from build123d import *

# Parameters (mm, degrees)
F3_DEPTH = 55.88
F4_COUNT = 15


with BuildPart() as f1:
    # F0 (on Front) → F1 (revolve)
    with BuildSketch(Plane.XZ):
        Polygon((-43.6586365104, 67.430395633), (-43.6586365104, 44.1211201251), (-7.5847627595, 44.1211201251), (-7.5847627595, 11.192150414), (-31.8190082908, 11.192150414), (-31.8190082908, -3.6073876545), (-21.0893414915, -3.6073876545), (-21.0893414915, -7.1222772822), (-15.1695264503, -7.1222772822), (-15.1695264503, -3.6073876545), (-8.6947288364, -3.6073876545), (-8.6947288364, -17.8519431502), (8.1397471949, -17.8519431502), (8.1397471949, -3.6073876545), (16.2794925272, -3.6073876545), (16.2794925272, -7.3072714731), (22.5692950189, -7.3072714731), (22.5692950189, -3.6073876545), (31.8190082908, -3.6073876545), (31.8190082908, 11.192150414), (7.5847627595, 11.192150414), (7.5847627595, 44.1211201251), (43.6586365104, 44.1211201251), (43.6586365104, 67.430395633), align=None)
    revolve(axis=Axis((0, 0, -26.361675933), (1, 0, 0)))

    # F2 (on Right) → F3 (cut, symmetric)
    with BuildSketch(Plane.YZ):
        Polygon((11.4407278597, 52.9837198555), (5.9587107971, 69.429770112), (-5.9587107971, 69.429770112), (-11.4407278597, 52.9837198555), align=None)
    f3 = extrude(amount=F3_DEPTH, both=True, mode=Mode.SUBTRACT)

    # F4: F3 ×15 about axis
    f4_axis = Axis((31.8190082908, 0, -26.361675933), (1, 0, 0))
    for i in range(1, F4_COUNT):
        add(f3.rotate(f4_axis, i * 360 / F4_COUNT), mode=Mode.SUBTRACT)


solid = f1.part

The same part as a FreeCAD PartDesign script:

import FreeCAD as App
import Part
import Sketcher

V = App.Vector
Q = App.Units.Quantity

doc = App.newDocument("Part")
body = doc.addObject("PartDesign::Body", "Body")

sketch1 = doc.addObject("Sketcher::SketchObject", "Sketch")
body.addObject(sketch1)
sketch1.AttachmentSupport = (doc.XZ_Plane, [""])
sketch1.MapMode = "FlatFace"
sketch1.addGeometry(Part.LineSegment(V(-43.7, 67.4, 0), V(-43.7, 44.1, 0)), False)
sketch1.addGeometry(Part.LineSegment(V(-43.7, 44.1, 0), V(-7.6, 44.1, 0)), False)
sketch1.addGeometry(Part.LineSegment(V(-7.6, 44.1, 0), V(-7.6, 11.2, 0)), False)
sketch1.addGeometry(Part.LineSegment(V(-7.6, 11.2, 0), V(-31.8, 11.2, 0)), False)
sketch1.addGeometry(Part.LineSegment(V(-31.8, 11.2, 0), V(-31.8, -3.6, 0)), False)
sketch1.addGeometry(Part.LineSegment(V(-31.8, -3.6, 0), V(-21.1, -3.6, 0)), False)
sketch1.addGeometry(Part.LineSegment(V(-21.1, -3.6, 0), V(-21.1, -7.1, 0)), False)
sketch1.addGeometry(Part.LineSegment(V(-21.1, -7.1, 0), V(-15.2, -7.1, 0)), False)
sketch1.addGeometry(Part.LineSegment(V(-15.2, -7.1, 0), V(-15.2, -3.6, 0)), False)
sketch1.addGeometry(Part.LineSegment(V(-15.2, -3.6, 0), V(-8.7, -3.6, 0)), False)
sketch1.addGeometry(Part.LineSegment(V(-8.7, -3.6, 0), V(-8.7, -17.9, 0)), False)
sketch1.addGeometry(Part.LineSegment(V(-8.7, -17.9, 0), V(8.1, -17.9, 0)), False)
sketch1.addGeometry(Part.LineSegment(V(8.1, -17.9, 0), V(8.1, -3.6, 0)), False)
sketch1.addGeometry(Part.LineSegment(V(8.1, -3.6, 0), V(16.3, -3.6, 0)), False)
sketch1.addGeometry(Part.LineSegment(V(16.3, -3.6, 0), V(16.3, -7.3, 0)), False)
sketch1.addGeometry(Part.LineSegment(V(16.3, -7.3, 0), V(22.6, -7.3, 0)), False)
sketch1.addGeometry(Part.LineSegment(V(22.6, -7.3, 0), V(22.6, -3.6, 0)), False)
sketch1.addGeometry(Part.LineSegment(V(22.6, -3.6, 0), V(31.8, -3.6, 0)), False)
sketch1.addGeometry(Part.LineSegment(V(31.8, -3.6, 0), V(31.8, 11.2, 0)), False)
sketch1.addGeometry(Part.LineSegment(V(31.8, 11.2, 0), V(7.6, 11.2, 0)), False)
sketch1.addGeometry(Part.LineSegment(V(7.6, 11.2, 0), V(7.6, 44.1, 0)), False)
sketch1.addGeometry(Part.LineSegment(V(7.6, 44.1, 0), V(43.7, 44.1, 0)), False)
sketch1.addGeometry(Part.LineSegment(V(43.7, 44.1, 0), V(43.7, 67.4, 0)), False)
sketch1.addGeometry(Part.LineSegment(V(43.7, 67.4, 0), V(-43.7, 67.4, 0)), False)
sketch1.addGeometry(Part.LineSegment(V(-43.7, -26.4, 0), V(43.7, -26.4, 0)), True)
sketch1.addConstraint(Sketcher.Constraint("Coincident", 0, 2, 1, 1))
sketch1.addConstraint(Sketcher.Constraint("Coincident", 1, 2, 2, 1))
sketch1.addConstraint(Sketcher.Constraint("Coincident", 2, 2, 3, 1))
sketch1.addConstraint(Sketcher.Constraint("Coincident", 3, 2, 4, 1))
sketch1.addConstraint(Sketcher.Constraint("Coincident", 4, 2, 5, 1))
sketch1.addConstraint(Sketcher.Constraint("Coincident", 5, 2, 6, 1))
sketch1.addConstraint(Sketcher.Constraint("Coincident", 6, 2, 7, 1))
sketch1.addConstraint(Sketcher.Constraint("Coincident", 7, 2, 8, 1))
sketch1.addConstraint(Sketcher.Constraint("Coincident", 8, 2, 9, 1))
sketch1.addConstraint(Sketcher.Constraint("Coincident", 9, 2, 10, 1))
sketch1.addConstraint(Sketcher.Constraint("Coincident", 10, 2, 11, 1))
sketch1.addConstraint(Sketcher.Constraint("Coincident", 11, 2, 12, 1))
sketch1.addConstraint(Sketcher.Constraint("Coincident", 12, 2, 13, 1))
sketch1.addConstraint(Sketcher.Constraint("Coincident", 13, 2, 14, 1))
sketch1.addConstraint(Sketcher.Constraint("Coincident", 14, 2, 15, 1))
sketch1.addConstraint(Sketcher.Constraint("Coincident", 15, 2, 16, 1))
sketch1.addConstraint(Sketcher.Constraint("Coincident", 16, 2, 17, 1))
sketch1.addConstraint(Sketcher.Constraint("Coincident", 17, 2, 18, 1))
sketch1.addConstraint(Sketcher.Constraint("Coincident", 18, 2, 19, 1))
sketch1.addConstraint(Sketcher.Constraint("Coincident", 19, 2, 20, 1))
sketch1.addConstraint(Sketcher.Constraint("Coincident", 20, 2, 21, 1))
sketch1.addConstraint(Sketcher.Constraint("Coincident", 21, 2, 22, 1))
sketch1.addConstraint(Sketcher.Constraint("Coincident", 22, 2, 23, 1))
sketch1.addConstraint(Sketcher.Constraint("Coincident", 23, 2, 0, 1))
sketch1.addConstraint(Sketcher.Constraint("Vertical", 0))
sketch1.addConstraint(Sketcher.Constraint("Horizontal", 1))
sketch1.addConstraint(Sketcher.Constraint("Vertical", 2))
sketch1.addConstraint(Sketcher.Constraint("Horizontal", 3))
sketch1.addConstraint(Sketcher.Constraint("Vertical", 4))
sketch1.addConstraint(Sketcher.Constraint("Horizontal", 5))
sketch1.addConstraint(Sketcher.Constraint("Vertical", 6))
sketch1.addConstraint(Sketcher.Constraint("Horizontal", 7))
sketch1.addConstraint(Sketcher.Constraint("Vertical", 8))
sketch1.addConstraint(Sketcher.Constraint("Horizontal", 9))
sketch1.addConstraint(Sketcher.Constraint("Vertical", 10))
sketch1.addConstraint(Sketcher.Constraint("Horizontal", 11))
sketch1.addConstraint(Sketcher.Constraint("Vertical", 12))
sketch1.addConstraint(Sketcher.Constraint("Horizontal", 13))
sketch1.addConstraint(Sketcher.Constraint("Vertical", 14))
sketch1.addConstraint(Sketcher.Constraint("Horizontal", 15))
sketch1.addConstraint(Sketcher.Constraint("Vertical", 16))
sketch1.addConstraint(Sketcher.Constraint("Horizontal", 17))
sketch1.addConstraint(Sketcher.Constraint("Vertical", 18))
sketch1.addConstraint(Sketcher.Constraint("Horizontal", 19))
sketch1.addConstraint(Sketcher.Constraint("Vertical", 20))
sketch1.addConstraint(Sketcher.Constraint("Horizontal", 21))
sketch1.addConstraint(Sketcher.Constraint("Vertical", 22))
sketch1.addConstraint(Sketcher.Constraint("Horizontal", 23))
sketch1.addConstraint(Sketcher.Constraint("Horizontal", 24))
sketch1.addConstraint(Sketcher.Constraint("Symmetric", 4, 2, 17, 2, -2))
sketch1.addConstraint(Sketcher.Constraint("Symmetric", 2, 2, 19, 2, -2))
sketch1.addConstraint(Sketcher.Constraint("Symmetric", 0, 2, 21, 2, -2))
sketch1.addConstraint(Sketcher.Constraint("Horizontal", 5, 2, 8, 2))
sketch1.addConstraint(Sketcher.Constraint("Horizontal", 9, 2, 12, 2))
sketch1.addConstraint(Sketcher.Constraint("Vertical", 23, 2, 24, 1))
sketch1.addConstraint(Sketcher.Constraint("Vertical", 22, 2, 24, 2))
sketch1.addConstraint(Sketcher.Constraint("DistanceY", 2, 2, 2, 1, 32.92897))
sketch1.addConstraint(Sketcher.Constraint("DistanceY", 4, 2, 4, 1, 14.799538))
sketch1.addConstraint(Sketcher.Constraint("DistanceY", 6, 2, 6, 1, 3.51489))
sketch1.addConstraint(Sketcher.Constraint("DistanceX", 1, 2, 21, 2, 51.243399))
sketch1.addConstraint(Sketcher.Constraint("DistanceY", 24, 1, 6, 2, 19.239399))
sketch1.addConstraint(Sketcher.Constraint("DistanceX", 1, 1, 1, 2, 36.073874))
sketch1.addConstraint(Sketcher.Constraint("DistanceX", 3, 2, 3, 1, 24.234246))
sketch1.addConstraint(Sketcher.Constraint("DistanceX", 5, 1, 5, 2, 10.729667))
sketch1.addConstraint(Sketcher.Constraint("DistanceX", 7, 1, 7, 2, 5.919815))
sketch1.addConstraint(Sketcher.Constraint("DistanceX", 9, 1, 9, 2, 6.474798))
sketch1.addConstraint(Sketcher.Constraint("DistanceX", 11, 1, 11, 2, 16.834476))
sketch1.addConstraint(Sketcher.Constraint("DistanceX", 13, 1, 13, 2, 8.139745))
sketch1.addConstraint(Sketcher.Constraint("DistanceX", 15, 1, 15, 2, 6.289802))
sketch1.addConstraint(Sketcher.Constraint("DistanceY", 0, 2, 0, 1, 23.309276))
sketch1.addConstraint(Sketcher.Constraint("DistanceY", 10, 2, 10, 1, 14.244555))
sketch1.addConstraint(Sketcher.Constraint("DistanceY", 14, 2, 14, 1, 3.699884))
sketch1.addConstraint(Sketcher.Constraint("DistanceY", -1, 1, 0, 2, 44.12112))
revolution = doc.addObject("PartDesign::Revolution", "Revolution")
body.addObject(revolution)
revolution.Profile = sketch1
revolution.ReferenceAxis = (sketch1, ["Axis0"])
revolution.Angle = 360

sketch2 = doc.addObject("Sketcher::SketchObject", "Sketch001")
body.addObject(sketch2)
sketch2.AttachmentSupport = (doc.YZ_Plane, [""])
sketch2.MapMode = "FlatFace"
sketch2.addGeometry(Part.LineSegment(V(11, 53, 0), V(6, 69, 0)), False)
sketch2.addGeometry(Part.LineSegment(V(6, 69, 0), V(-6, 69, 0)), False)
sketch2.addGeometry(Part.LineSegment(V(-6, 69, 0), V(-11, 53, 0)), False)
sketch2.addGeometry(Part.LineSegment(V(-11, 53, 0), V(11, 53, 0)), False)
sketch2.addConstraint(Sketcher.Constraint("Coincident", 0, 2, 1, 1))
sketch2.addConstraint(Sketcher.Constraint("Coincident", 1, 2, 2, 1))
sketch2.addConstraint(Sketcher.Constraint("Coincident", 2, 2, 3, 1))
sketch2.addConstraint(Sketcher.Constraint("Coincident", 3, 2, 0, 1))
sketch2.addConstraint(Sketcher.Constraint("Horizontal", 1))
sketch2.addConstraint(Sketcher.Constraint("Horizontal", 3))
sketch2.addConstraint(Sketcher.Constraint("Equal", 0, 2))
sketch2.addConstraint(Sketcher.Constraint("DistanceX", 1, 2, 1, 1, 11.917422))
sketch2.addConstraint(Sketcher.Constraint("Distance", 0, 17.335659))
sketch2.addConstraint(Sketcher.Constraint("DistanceX", 3, 1, 3, 2, 22.881456))
sketch2.addConstraint(Sketcher.Constraint("DistanceX", -1, 1, 0, 2, 5.958711))
sketch2.addConstraint(Sketcher.Constraint("DistanceY", -1, 1, 0, 2, 69.42977))
pocket1 = doc.addObject("PartDesign::Pocket", "Pocket")
body.addObject(pocket1)
pocket1.Profile = sketch2
pocket1.Length = Q("4.4 in")
pocket1.Midplane = True
doc.recompute()

datumline = doc.addObject("PartDesign::Line", "DatumLine")
body.addObject(datumline)
datumline.Placement = App.Placement(V(0, 0, -26.361676), App.Rotation(V(0, 0, 1), V(1, 0, 0)))
polarpattern = doc.addObject("PartDesign::PolarPattern", "PolarPattern")
body.addObject(polarpattern)
polarpattern.Originals = [pocket1]
polarpattern.Axis = (datumline, [""])
polarpattern.Angle = 360
polarpattern.Occurrences = 15
body.Tip = polarpattern

doc.recompute()
